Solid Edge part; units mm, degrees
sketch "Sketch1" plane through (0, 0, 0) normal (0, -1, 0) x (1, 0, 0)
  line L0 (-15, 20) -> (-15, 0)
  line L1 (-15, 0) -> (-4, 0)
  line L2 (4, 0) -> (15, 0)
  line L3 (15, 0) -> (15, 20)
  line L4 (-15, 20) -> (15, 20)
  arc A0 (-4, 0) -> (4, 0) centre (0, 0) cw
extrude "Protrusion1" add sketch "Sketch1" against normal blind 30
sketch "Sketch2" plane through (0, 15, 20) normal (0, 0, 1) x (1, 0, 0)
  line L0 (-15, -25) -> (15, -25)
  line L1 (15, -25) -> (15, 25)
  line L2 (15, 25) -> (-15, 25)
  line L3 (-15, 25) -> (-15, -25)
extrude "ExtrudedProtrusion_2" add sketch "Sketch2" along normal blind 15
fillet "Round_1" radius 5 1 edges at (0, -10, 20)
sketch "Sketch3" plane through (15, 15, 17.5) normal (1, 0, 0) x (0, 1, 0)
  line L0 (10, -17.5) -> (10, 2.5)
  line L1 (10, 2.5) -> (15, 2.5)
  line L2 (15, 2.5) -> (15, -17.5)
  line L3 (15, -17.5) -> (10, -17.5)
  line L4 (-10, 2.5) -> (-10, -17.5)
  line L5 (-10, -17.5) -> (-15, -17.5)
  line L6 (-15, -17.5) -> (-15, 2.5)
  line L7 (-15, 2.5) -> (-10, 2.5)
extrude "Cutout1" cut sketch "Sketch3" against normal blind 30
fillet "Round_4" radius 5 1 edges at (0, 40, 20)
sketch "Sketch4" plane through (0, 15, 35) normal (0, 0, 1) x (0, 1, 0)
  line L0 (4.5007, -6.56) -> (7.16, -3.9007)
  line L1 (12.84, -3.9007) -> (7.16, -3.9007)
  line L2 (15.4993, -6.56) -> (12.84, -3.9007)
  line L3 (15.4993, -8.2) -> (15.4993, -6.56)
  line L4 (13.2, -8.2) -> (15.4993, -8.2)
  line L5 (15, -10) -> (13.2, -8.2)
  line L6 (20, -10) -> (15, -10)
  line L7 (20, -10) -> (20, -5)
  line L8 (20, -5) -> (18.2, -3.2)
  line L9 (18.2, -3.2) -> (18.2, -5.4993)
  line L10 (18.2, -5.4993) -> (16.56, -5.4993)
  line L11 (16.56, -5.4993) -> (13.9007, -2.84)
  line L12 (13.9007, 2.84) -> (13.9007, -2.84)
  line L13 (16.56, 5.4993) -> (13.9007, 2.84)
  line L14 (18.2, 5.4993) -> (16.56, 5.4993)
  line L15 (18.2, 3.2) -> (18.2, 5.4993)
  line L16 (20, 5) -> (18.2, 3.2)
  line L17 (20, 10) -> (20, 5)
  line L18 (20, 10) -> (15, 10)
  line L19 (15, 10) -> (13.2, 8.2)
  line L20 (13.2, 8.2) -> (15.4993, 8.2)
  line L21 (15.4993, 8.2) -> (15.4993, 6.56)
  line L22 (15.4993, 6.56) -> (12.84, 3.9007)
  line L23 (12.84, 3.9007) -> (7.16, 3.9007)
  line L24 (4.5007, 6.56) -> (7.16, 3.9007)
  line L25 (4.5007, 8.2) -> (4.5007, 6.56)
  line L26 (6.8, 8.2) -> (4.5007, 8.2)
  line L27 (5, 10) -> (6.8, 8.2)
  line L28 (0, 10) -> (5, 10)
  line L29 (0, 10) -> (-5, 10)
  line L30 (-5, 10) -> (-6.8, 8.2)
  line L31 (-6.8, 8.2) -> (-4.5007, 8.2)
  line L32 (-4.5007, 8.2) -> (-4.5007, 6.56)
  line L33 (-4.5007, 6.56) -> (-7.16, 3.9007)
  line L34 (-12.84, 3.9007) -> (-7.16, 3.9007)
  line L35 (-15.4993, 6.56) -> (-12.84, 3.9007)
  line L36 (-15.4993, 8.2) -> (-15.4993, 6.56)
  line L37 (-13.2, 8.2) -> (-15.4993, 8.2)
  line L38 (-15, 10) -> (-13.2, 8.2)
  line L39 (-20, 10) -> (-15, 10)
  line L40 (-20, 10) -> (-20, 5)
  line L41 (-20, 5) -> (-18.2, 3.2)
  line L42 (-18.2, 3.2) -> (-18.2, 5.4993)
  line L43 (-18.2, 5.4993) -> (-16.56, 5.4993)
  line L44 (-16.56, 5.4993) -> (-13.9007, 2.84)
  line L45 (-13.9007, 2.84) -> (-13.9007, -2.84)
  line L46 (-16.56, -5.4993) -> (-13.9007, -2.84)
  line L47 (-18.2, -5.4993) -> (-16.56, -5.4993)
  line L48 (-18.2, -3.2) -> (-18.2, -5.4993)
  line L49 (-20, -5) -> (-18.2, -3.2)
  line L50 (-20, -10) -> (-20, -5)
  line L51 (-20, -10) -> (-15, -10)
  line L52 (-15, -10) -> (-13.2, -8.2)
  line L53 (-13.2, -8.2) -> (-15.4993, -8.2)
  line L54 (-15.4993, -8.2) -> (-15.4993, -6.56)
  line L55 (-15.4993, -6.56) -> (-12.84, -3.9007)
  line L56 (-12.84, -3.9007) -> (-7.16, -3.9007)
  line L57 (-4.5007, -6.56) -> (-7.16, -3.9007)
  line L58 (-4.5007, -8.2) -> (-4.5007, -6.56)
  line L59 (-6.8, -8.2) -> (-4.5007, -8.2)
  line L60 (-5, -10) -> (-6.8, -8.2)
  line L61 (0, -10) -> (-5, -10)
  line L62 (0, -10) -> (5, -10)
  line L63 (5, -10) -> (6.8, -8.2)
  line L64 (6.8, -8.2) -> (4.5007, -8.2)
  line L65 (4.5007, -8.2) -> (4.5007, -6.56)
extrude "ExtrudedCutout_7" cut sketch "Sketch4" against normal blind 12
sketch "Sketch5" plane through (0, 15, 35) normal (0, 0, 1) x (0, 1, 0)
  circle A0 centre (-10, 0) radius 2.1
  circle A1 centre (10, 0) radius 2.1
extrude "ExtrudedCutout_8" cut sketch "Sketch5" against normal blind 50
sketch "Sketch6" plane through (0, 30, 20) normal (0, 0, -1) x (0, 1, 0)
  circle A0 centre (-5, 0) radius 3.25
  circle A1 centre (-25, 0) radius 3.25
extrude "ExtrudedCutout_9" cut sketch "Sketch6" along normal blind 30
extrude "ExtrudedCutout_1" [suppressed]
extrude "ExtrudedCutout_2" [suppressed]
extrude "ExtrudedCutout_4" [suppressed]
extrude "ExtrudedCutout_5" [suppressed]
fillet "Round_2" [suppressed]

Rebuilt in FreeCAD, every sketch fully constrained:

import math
import FreeCAD as App
import Part
import Sketcher
from FreeCAD import Vector
Q = App.Units.Quantity


def edges_at(feature, points):
    """Names of the edges that pass closest to the given points."""
    edges = feature.Shape.Edges
    near = lambda p: min(range(len(edges)), key=lambda i: edges[i].distToShape(Part.Vertex(*p))[0])
    return sorted({f"Edge{near(p) + 1}" for p in points})


def add_polygon(sketch, points):
    """Adds a closed chain of lines whose ends are joined by coincident constraints."""
    first, n = sketch.GeometryCount, len(points)
    for a, b in zip(points, points[1:] + points[:1]):
        sketch.addGeometry(Part.LineSegment(App.Vector(*a, 0), App.Vector(*b, 0)), False)
    for i in range(n):
        sketch.addConstraint(Sketcher.Constraint("Coincident", first + i, 2, first + (i + 1) % n, 1))

doc = App.newDocument("Part")
body = doc.addObject("PartDesign::Body", "Body")

# Sketch on XZ plane
sketch1 = body.newObject("Sketcher::SketchObject", "Sketch")
sketch1.AttachmentSupport = (doc.getObject("XZ_Plane"), [""])
sketch1.MapMode = "FlatFace"
sketch1.addGeometry(Part.LineSegment(Vector(15, 20, 0), Vector(-15, 20, 0)), False)
sketch1.addGeometry(Part.LineSegment(Vector(-15, 20, 0), Vector(-15, 0, 0)), False)
sketch1.addGeometry(Part.LineSegment(Vector(-15, 0, 0), Vector(-4, 0, 0)), False)
sketch1.addGeometry(Part.ArcOfCircle(Part.Circle(Vector(0, 0, 0), Vector(0, 0, 1), 4), math.radians(0), math.radians(180)), False)
sketch1.addGeometry(Part.LineSegment(Vector(4, 0, 0), Vector(15, 0, 0)), False)
sketch1.addGeometry(Part.LineSegment(Vector(15, 0, 0), Vector(15, 20, 0)), False)
sketch1.addConstraint(Sketcher.Constraint("Coincident", 0, 2, 1, 1))
sketch1.addConstraint(Sketcher.Constraint("Coincident", 1, 2, 2, 1))
sketch1.addConstraint(Sketcher.Constraint("Coincident", 2, 2, 3, 2))
sketch1.addConstraint(Sketcher.Constraint("Coincident", 3, 1, 4, 1))
sketch1.addConstraint(Sketcher.Constraint("Coincident", 4, 2, 5, 1))
sketch1.addConstraint(Sketcher.Constraint("Coincident", 5, 2, 0, 1))
sketch1.addConstraint(Sketcher.Constraint("Horizontal", 0))
sketch1.addConstraint(Sketcher.Constraint("Vertical", 1))
sketch1.addConstraint(Sketcher.Constraint("Horizontal", 2))
sketch1.addConstraint(Sketcher.Constraint("Horizontal", 4))
sketch1.addConstraint(Sketcher.Constraint("Vertical", 5))
sketch1.addConstraint(Sketcher.Constraint("Coincident", 3, 3, -1, 1))
sketch1.addConstraint(Sketcher.Constraint("Symmetric", 1, 2, 4, 2, -1, 1))
sketch1.addConstraint(Sketcher.Constraint("PointOnObject", 1, 2, -1))
sketch1.addConstraint(Sketcher.Constraint("Radius", 3, Q("4 mm")))
sketch1.addConstraint(Sketcher.Constraint("DistanceX", 0, 2, 0, 1, Q("30 mm")))
sketch1.addConstraint(Sketcher.Constraint("DistanceY", 1, 2, 1, 1, Q("20 mm")))
pad1 = body.newObject("PartDesign::Pad", "Pad")
pad1.Profile = sketch1
pad1.Length = 30
pad1.Reversed = True

# Sketch on XY plane
sketch2 = body.newObject("Sketcher::SketchObject", "Sketch001")
sketch2.AttachmentSupport = (doc.getObject("XY_Plane"), [""])
sketch2.MapMode = "FlatFace"
sketch2.AttachmentOffset = App.Placement(Vector(0, 0, 20), App.Rotation())
add_polygon(sketch2, [(-15, 40), (-15, -10), (15, -10), (15, 40)])  # lines 0-3
sketch2.addConstraint(Sketcher.Constraint("Vertical", 0))
sketch2.addConstraint(Sketcher.Constraint("Horizontal", 1))
sketch2.addConstraint(Sketcher.Constraint("Vertical", 2))
sketch2.addConstraint(Sketcher.Constraint("Horizontal", 3))
sketch2.addConstraint(Sketcher.Constraint("DistanceX", 1, 1, 1, 2, Q("30 mm")))
sketch2.addConstraint(Sketcher.Constraint("DistanceY", 0, 2, 0, 1, Q("50 mm")))
sketch2.addConstraint(Sketcher.Constraint("DistanceX", 0, 2, -1, 1, Q("15 mm")))
sketch2.addConstraint(Sketcher.Constraint("DistanceY", 0, 2, -1, 1, Q("10 mm")))
pad2 = body.newObject("PartDesign::Pad", "Pad001")
pad2.Profile = sketch2
pad2.Length = 15
doc.recompute()

fillet = body.newObject("PartDesign::Fillet", "Fillet")
fillet.Base = (pad2, edges_at(pad2, [(0, -10, 20)]))
fillet.Radius = 5

# Sketch on YZ plane
sketch3 = body.newObject("Sketcher::SketchObject", "Sketch002")
sketch3.AttachmentSupport = (doc.getObject("YZ_Plane"), [""])
sketch3.MapMode = "FlatFace"
sketch3.AttachmentOffset = App.Placement(Vector(0, 0, 15), App.Rotation())
add_polygon(sketch3, [(25, 20), (25, 0), (30, 0), (30, 20)])  # lines 0-3
add_polygon(sketch3, [(5, 0), (5, 20), (0, 20), (0, 0)])  # lines 4-7
sketch3.addConstraint(Sketcher.Constraint("Vertical", 0))
sketch3.addConstraint(Sketcher.Constraint("Horizontal", 1))
sketch3.addConstraint(Sketcher.Constraint("Vertical", 2))
sketch3.addConstraint(Sketcher.Constraint("Horizontal", 3))
sketch3.addConstraint(Sketcher.Constraint("Vertical", 4))
sketch3.addConstraint(Sketcher.Constraint("Horizontal", 5))
sketch3.addConstraint(Sketcher.Constraint("Vertical", 6))
sketch3.addConstraint(Sketcher.Constraint("Horizontal", 7))
sketch3.addConstraint(Sketcher.Constraint("Coincident", 6, 2, -1, 1))
sketch3.addConstraint(Sketcher.Constraint("PointOnObject", 0, 2, -1))
sketch3.addConstraint(Sketcher.Constraint("Horizontal", 3, 2, 4, 2))
sketch3.addConstraint(Sketcher.Constraint("Equal", 3, 5))
sketch3.addConstraint(Sketcher.Constraint("DistanceX", 1, 1, 1, 2, Q("5 mm")))
sketch3.addConstraint(Sketcher.Constraint("DistanceY", 0, 2, 0, 1, Q("20 mm")))
sketch3.addConstraint(Sketcher.Constraint("DistanceX", -1, 1, 0, 2, Q("25 mm")))
pocket1 = body.newObject("PartDesign::Pocket", "Pocket")
pocket1.Profile = sketch3
pocket1.Length = 30
doc.recompute()

fillet2 = body.newObject("PartDesign::Fillet", "Fillet001")
fillet2.Base = (pocket1, edges_at(pocket1, [(0, 40, 20)]))
fillet2.Radius = 5

# Sketch on XY plane
sketch4 = body.newObject("Sketcher::SketchObject", "Sketch003")
sketch4.AttachmentSupport = (doc.getObject("XY_Plane"), [""])
sketch4.MapMode = "FlatFace"
sketch4.AttachmentOffset = App.Placement(Vector(0, 0, 35), App.Rotation())
add_polygon(sketch4, [(8.2, 19.5), (6.6, 19.5), (3.9, 22.2), (3.9, 27.8), (6.6, 30.5), (8.2, 30.5), (8.2, 28.2), (10, 30), (10, 35), (5, 35), (3.2, 33.2), (5.5, 33.2), (5.5, 31.6), (2.8, 28.9), (-2.8, 28.9), (-5.5, 31.6), (-5.5, 33.2), (-3.2, 33.2), (-5, 35), (-10, 35), (-10, 30), (-8.2, 28.2), (-8.2, 30.5), (-6.6, 30.5), (-3.9, 27.8), (-3.9, 22.2), (-6.6, 19.5), (-8.2, 19.5), (-8.2, 21.8), (-10, 20), (-10, 10), (-8.2, 8.2), (-8.2, 10.5), (-6.6, 10.5), (-3.9, 7.8), (-3.9, 2.2), (-6.6, -0.5), (-8.2, -0.5), (-8.2, 1.8), (-10, 0), (-10, -5), (-5, -5), (-3.2, -3.2), (-5.5, -3.2), (-5.5, -1.6), (-2.8, 1.1), (2.8, 1.1), (5.5, -1.6), (5.5, -3.2), (3.2, -3.2), (5, -5), (10, -5), (10, 0), (8.2, 1.8), (8.2, -0.5), (6.6, -0.5), (3.9, 2.2), (3.9, 7.8), (6.6, 10.5), (8.2, 10.5), (8.2, 8.2), (10, 10), (10, 20), (8.2, 21.8)])  # lines 0-63
sketch4.addConstraint(Sketcher.Constraint("Horizontal", 0))
sketch4.addConstraint(Sketcher.Constraint("Vertical", 2))
sketch4.addConstraint(Sketcher.Constraint("Horizontal", 4))
sketch4.addConstraint(Sketcher.Constraint("Vertical", 5))
sketch4.addConstraint(Sketcher.Constraint("Vertical", 7))
sketch4.addConstraint(Sketcher.Constraint("Horizontal", 8))
sketch4.addConstraint(Sketcher.Constraint("Horizontal", 10))
sketch4.addConstraint(Sketcher.Constraint("Vertical", 11))
sketch4.addConstraint(Sketcher.Constraint("Horizontal", 13))
sketch4.addConstraint(Sketcher.Constraint("Vertical", 15))
sketch4.addConstraint(Sketcher.Constraint("Horizontal", 16))
sketch4.addConstraint(Sketcher.Constraint("Horizontal", 18))
sketch4.addConstraint(Sketcher.Constraint("Vertical", 19))
sketch4.addConstraint(Sketcher.Constraint("Vertical", 21))
sketch4.addConstraint(Sketcher.Constraint("Horizontal", 22))
sketch4.addConstraint(Sketcher.Constraint("Vertical", 24))
sketch4.addConstraint(Sketcher.Constraint("Horizontal", 26))
sketch4.addConstraint(Sketcher.Constraint("Vertical", 27))
sketch4.addConstraint(Sketcher.Constraint("Vertical", 29))
sketch4.addConstraint(Sketcher.Constraint("Vertical", 31))
sketch4.addConstraint(Sketcher.Constraint("Horizontal", 32))
sketch4.addConstraint(Sketcher.Constraint("Vertical", 34))
sketch4.addConstraint(Sketcher.Constraint("Horizontal", 36))
sketch4.addConstraint(Sketcher.Constraint("Vertical", 37))
sketch4.addConstraint(Sketcher.Constraint("Vertical", 39))
sketch4.addConstraint(Sketcher.Constraint("Horizontal", 40))
sketch4.addConstraint(Sketcher.Constraint("Horizontal", 42))
sketch4.addConstraint(Sketcher.Constraint("Vertical", 43))
sketch4.addConstraint(Sketcher.Constraint("Horizontal", 45))
sketch4.addConstraint(Sketcher.Constraint("Vertical", 47))
sketch4.addConstraint(Sketcher.Constraint("Horizontal", 48))
sketch4.addConstraint(Sketcher.Constraint("Horizontal", 50))
sketch4.addConstraint(Sketcher.Constraint("Vertical", 51))
sketch4.addConstraint(Sketcher.Constraint("Vertical", 53))
sketch4.addConstraint(Sketcher.Constraint("Horizontal", 54))
sketch4.addConstraint(Sketcher.Constraint("Vertical", 56))
sketch4.addConstraint(Sketcher.Constraint("Horizontal", 58))
sketch4.addConstraint(Sketcher.Constraint("Vertical", 59))
sketch4.addConstraint(Sketcher.Constraint("Vertical", 61))
sketch4.addConstraint(Sketcher.Constraint("Vertical", 63))
sketch4.addConstraint(Sketcher.Constraint("Symmetric", 38, 2, 51, 2, -1, 1))
sketch4.addConstraint(Sketcher.Constraint("Symmetric", 11, 2, 14, 2, -2))
sketch4.addConstraint(Sketcher.Constraint("Symmetric", 9, 2, 16, 2, -2))
sketch4.addConstraint(Sketcher.Constraint("Symmetric", 8, 2, 17, 2, -2))
sketch4.addConstraint(Sketcher.Constraint("Symmetric", 6, 2, 19, 2, -2))
sketch4.addConstraint(Sketcher.Constraint("Symmetric", 5, 2, 20, 2, -2))
sketch4.addConstraint(Sketcher.Constraint("Symmetric", 3, 2, 22, 2, -2))
sketch4.addConstraint(Sketcher.Constraint("Symmetric", 2, 2, 23, 2, -2))
sketch4.addConstraint(Sketcher.Constraint("Symmetric", 0, 2, 25, 2, -2))
sketch4.addConstraint(Sketcher.Constraint("Symmetric", 43, 2, 46, 2, -2))
sketch4.addConstraint(Sketcher.Constraint("Symmetric", 41, 2, 48, 2, -2))
sketch4.addConstraint(Sketcher.Constraint("Symmetric", 40, 2, 49, 2, -2))
sketch4.addConstraint(Sketcher.Constraint("Symmetric", 37, 2, 52, 2, -2))
sketch4.addConstraint(Sketcher.Constraint("Symmetric", 35, 2, 54, 2, -2))
sketch4.addConstraint(Sketcher.Constraint("Symmetric", 34, 2, 55, 2, -2))
sketch4.addConstraint(Sketcher.Constraint("Symmetric", 32, 2, 57, 2, -2))
sketch4.addConstraint(Sketcher.Constraint("Symmetric", 30, 2, 59, 2, -2))
sketch4.addConstraint(Sketcher.Constraint("Symmetric", 29, 2, 60, 2, -2))
sketch4.addConstraint(Sketcher.Constraint("Symmetric", 27, 2, 62, 2, -2))
sketch4.addConstraint(Sketcher.Constraint("PointOnObject", 38, 2, -1))
sketch4.addConstraint(Sketcher.Constraint("Perpendicular", 1, 3))
sketch4.addConstraint(Sketcher.Constraint("Parallel", 3, 6))
sketch4.addConstraint(Sketcher.Constraint("Parallel", 6, 9))
sketch4.addConstraint(Sketcher.Constraint("Parallel", 9, 12))
sketch4.addConstraint(Sketcher.Constraint("Perpendicular", 12, 14))
sketch4.addConstraint(Sketcher.Constraint("Parallel", 14, 17))
sketch4.addConstraint(Sketcher.Constraint("Perpendicular", 23, 25))
sketch4.addConstraint(Sketcher.Constraint("Parallel", 25, 28))
sketch4.addConstraint(Sketcher.Constraint("Perpendicular", 28, 30))
sketch4.addConstraint(Sketcher.Constraint("Parallel", 30, 33))
sketch4.addConstraint(Sketcher.Constraint("Perpendicular", 33, 35))
sketch4.addConstraint(Sketcher.Constraint("Parallel", 35, 38))
sketch4.addConstraint(Sketcher.Constraint("Parallel", 38, 41))
sketch4.addConstraint(Sketcher.Constraint("Parallel", 41, 44))
sketch4.addConstraint(Sketcher.Constraint("Perpendicular", 44, 46))
sketch4.addConstraint(Sketcher.Constraint("Perpendicular", 55, 57))
sketch4.addConstraint(Sketcher.Constraint("Perpendicular", 60, 62))
sketch4.addConstraint(Sketcher.Constraint("Vertical", 0, 2, 3, 2))
sketch4.addConstraint(Sketcher.Constraint("Vertical", 21, 2, 26, 2))
sketch4.addConstraint(Sketcher.Constraint("Vertical", 19, 2, 28, 2))
sketch4.addConstraint(Sketcher.Constraint("Vertical", 27, 2, 30, 2))
sketch4.addConstraint(Sketcher.Constraint("Vertical", 25, 2, 32, 2))
sketch4.addConstraint(Sketcher.Constraint("Vertical", 24, 2, 33, 2))
sketch4.addConstraint(Sketcher.Constraint("Vertical", 32, 2, 35, 2))
sketch4.addConstraint(Sketcher.Constraint("Vertical", 31, 2, 36, 2))
sketch4.addConstraint(Sketcher.Constraint("Vertical", 29, 2, 38, 2))
sketch4.addConstraint(Sketcher.Constraint("Vertical", 17, 2, 40, 2))
sketch4.addConstraint(Sketcher.Constraint("Vertical", 16, 2, 41, 2))
sketch4.addConstraint(Sketcher.Constraint("Vertical", 15, 2, 42, 2))
sketch4.addConstraint(Sketcher.Constraint("Vertical", 13, 2, 44, 2))
sketch4.addConstraint(Sketcher.Constraint("Equal", 45, 2))
sketch4.addConstraint(Sketcher.Constraint("Equal", 48, 5))
sketch4.addConstraint(Sketcher.Constraint("Equal", 50, 7))
sketch4.addConstraint(Sketcher.Constraint("Equal", 58, 11))
sketch4.addConstraint(Sketcher.Constraint("Equal", 21, 27))
sketch4.addConstraint(Sketcher.Constraint("Equal", 27, 31))
sketch4.addConstraint(Sketcher.Constraint("Equal", 24, 34))
sketch4.addConstraint(Sketcher.Constraint("Equal", 31, 37))
sketch4.addConstraint(Sketcher.Constraint("Equal", 19, 39))
sketch4.addConstraint(Sketcher.Constraint("Equal", 15, 43))
sketch4.addConstraint(Sketcher.Constraint("Equal", 6, 9))
sketch4.addConstraint(Sketcher.Constraint("Equal", 3, 12))
sketch4.addConstraint(Sketcher.Constraint("DistanceX", 8, 2, 8, 1, Q("5 mm")))
sketch4.addConstraint(Sketcher.Constraint("DistanceY", 29, 2, 29, 1, Q("10 mm")))
sketch4.addConstraint(Sketcher.Constraint("DistanceX", -1, 1, 6, 2, Q("10 mm")))
sketch4.addConstraint(Sketcher.Constraint("DistanceX", 0, 2, 0, 1, Q("1.64 mm")))
sketch4.addConstraint(Sketcher.Constraint("DistanceX", 13, 2, 13, 1, Q("5.68 mm")))
sketch4.addConstraint(Sketcher.Constraint("DistanceX", -1, 1, 4, 2, Q("8.2 mm")))
sketch4.addConstraint(Sketcher.Constraint("DistanceX", 10, 1, 10, 2, Q("2.2993 mm")))
pocket2 = body.newObject("PartDesign::Pocket", "Pocket001")
pocket2.Profile = sketch4
pocket2.Length = 12

# Sketch on XY plane
sketch5 = body.newObject("Sketcher::SketchObject", "Sketch004")
sketch5.AttachmentSupport = (doc.getObject("XY_Plane"), [""])
sketch5.MapMode = "FlatFace"
sketch5.AttachmentOffset = App.Placement(Vector(0, 0, 35), App.Rotation())
sketch5.addGeometry(Part.Circle(Vector(0, 5, 0), Vector(0, 0, 1), 2.1), False)
sketch5.addGeometry(Part.Circle(Vector(0, 25, 0), Vector(0, 0, 1), 2.1), False)
sketch5.addConstraint(Sketcher.Constraint("Equal", 0, 1))
sketch5.addConstraint(Sketcher.Constraint("PointOnObject", 0, 3, -2))
sketch5.addConstraint(Sketcher.Constraint("PointOnObject", 1, 3, -2))
sketch5.addConstraint(Sketcher.Constraint("Diameter", 0, Q("4.2 mm")))
sketch5.addConstraint(Sketcher.Constraint("DistanceY", -1, 1, 0, 3, Q("5 mm")))
sketch5.addConstraint(Sketcher.Constraint("DistanceY", -1, 1, 1, 3, Q("25 mm")))
pocket3 = body.newObject("PartDesign::Pocket", "Pocket002")
pocket3.Profile = sketch5
pocket3.Length = 50

# Sketch on XY plane
sketch6 = body.newObject("Sketcher::SketchObject", "Sketch005")
sketch6.AttachmentSupport = (doc.getObject("XY_Plane"), [""])
sketch6.MapMode = "FlatFace"
sketch6.AttachmentOffset = App.Placement(Vector(0, 0, 20), App.Rotation())
sketch6.addGeometry(Part.Circle(Vector(0, 25, 0), Vector(0, 0, 1), 3.2), False)
sketch6.addGeometry(Part.Circle(Vector(0, 5, 0), Vector(0, 0, 1), 3.2), False)
sketch6.addConstraint(Sketcher.Constraint("Equal", 0, 1))
sketch6.addConstraint(Sketcher.Constraint("PointOnObject", 0, 3, -2))
sketch6.addConstraint(Sketcher.Constraint("PointOnObject", 1, 3, -2))
sketch6.addConstraint(Sketcher.Constraint("Diameter", 0, Q("6.5 mm")))
sketch6.addConstraint(Sketcher.Constraint("DistanceY", -1, 1, 0, 3, Q("25 mm")))
sketch6.addConstraint(Sketcher.Constraint("DistanceY", -1, 1, 1, 3, Q("5 mm")))
pocket4 = body.newObject("PartDesign::Pocket", "Pocket003")
pocket4.Profile = sketch6
pocket4.Length = 30

doc.recompute()
